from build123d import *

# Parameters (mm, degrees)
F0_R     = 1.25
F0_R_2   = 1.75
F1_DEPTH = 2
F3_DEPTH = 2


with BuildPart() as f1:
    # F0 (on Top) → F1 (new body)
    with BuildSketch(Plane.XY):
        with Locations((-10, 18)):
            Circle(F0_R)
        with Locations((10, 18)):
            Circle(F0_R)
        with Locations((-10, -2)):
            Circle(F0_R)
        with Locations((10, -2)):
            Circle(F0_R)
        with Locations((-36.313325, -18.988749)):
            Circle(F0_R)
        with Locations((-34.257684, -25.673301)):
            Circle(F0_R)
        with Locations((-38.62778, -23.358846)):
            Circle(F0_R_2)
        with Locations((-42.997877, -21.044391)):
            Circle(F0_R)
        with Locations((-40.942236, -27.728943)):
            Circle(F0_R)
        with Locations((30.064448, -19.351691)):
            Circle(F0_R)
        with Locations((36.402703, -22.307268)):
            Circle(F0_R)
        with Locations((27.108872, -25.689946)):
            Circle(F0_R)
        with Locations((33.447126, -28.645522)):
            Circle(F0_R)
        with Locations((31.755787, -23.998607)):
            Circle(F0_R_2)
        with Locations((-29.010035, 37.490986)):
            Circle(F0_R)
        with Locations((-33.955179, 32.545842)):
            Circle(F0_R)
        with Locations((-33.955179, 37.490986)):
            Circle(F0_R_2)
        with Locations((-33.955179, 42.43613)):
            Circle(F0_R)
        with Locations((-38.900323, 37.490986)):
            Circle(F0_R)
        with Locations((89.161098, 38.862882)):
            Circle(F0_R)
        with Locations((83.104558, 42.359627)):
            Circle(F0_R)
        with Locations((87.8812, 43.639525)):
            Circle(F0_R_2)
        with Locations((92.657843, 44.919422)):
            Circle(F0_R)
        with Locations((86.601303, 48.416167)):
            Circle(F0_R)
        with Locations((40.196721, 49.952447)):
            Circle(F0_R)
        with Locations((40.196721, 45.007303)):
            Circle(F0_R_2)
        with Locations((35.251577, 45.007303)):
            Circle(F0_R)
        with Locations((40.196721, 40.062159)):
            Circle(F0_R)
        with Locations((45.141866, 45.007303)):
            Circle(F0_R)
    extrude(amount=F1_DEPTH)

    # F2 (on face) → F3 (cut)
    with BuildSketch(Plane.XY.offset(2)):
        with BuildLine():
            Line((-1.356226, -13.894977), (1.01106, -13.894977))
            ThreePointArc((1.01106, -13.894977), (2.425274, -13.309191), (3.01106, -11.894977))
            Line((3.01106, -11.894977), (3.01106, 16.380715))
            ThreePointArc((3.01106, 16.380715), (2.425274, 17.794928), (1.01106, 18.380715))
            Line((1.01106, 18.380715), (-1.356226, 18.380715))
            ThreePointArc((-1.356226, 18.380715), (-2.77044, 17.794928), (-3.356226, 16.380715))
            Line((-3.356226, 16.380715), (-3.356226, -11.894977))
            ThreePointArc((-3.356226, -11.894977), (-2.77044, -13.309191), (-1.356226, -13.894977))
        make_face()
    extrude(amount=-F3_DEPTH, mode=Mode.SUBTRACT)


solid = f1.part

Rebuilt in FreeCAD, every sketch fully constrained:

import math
import FreeCAD as App
import Part
import Sketcher

doc = App.newDocument("Part")
params = doc.addObject("Spreadsheet::Sheet", "Params")
for row, (alias, value) in enumerate([
    ("sketch1_diameter", "2.5 mm"),
    ("sketch1_diameter2", "3.5 mm"),
    ("pad1_length", "2 mm"),
    ("sketch2_radius", "1.999999 mm"),
    ("pocket1_length", "2 mm"),
], start=1):
    params.set(f"A{row}", alias)
    params.set(f"B{row}", "=" + value)
    params.setAlias(f"B{row}", alias)

body = doc.addObject("PartDesign::Body", "Body")
body.AllowCompound = True

# Sketch on XY plane
sketch1 = body.newObject("Sketcher::SketchObject", "Sketch")
sketch1.AttachmentSupport = (doc.getObject("XY_Plane"), [""])
sketch1.MapMode = "FlatFace"
sketch1.addGeometry([
    Part.Circle(App.Vector(-10, 18, 0), App.Vector(0, 0, 1), 1.25),  # 0
    Part.Circle(App.Vector(10, 18, 0), App.Vector(0, 0, 1), 1.25),  # 1
    Part.Circle(App.Vector(-10, -2, 0), App.Vector(0, 0, 1), 1.25),  # 2
    Part.Circle(App.Vector(10, -2, 0), App.Vector(0, 0, 1), 1.25),  # 3
    Part.Circle(App.Vector(-36.313325, -18.988749, 0), App.Vector(0, 0, 1), 1.25),  # 4
    Part.Circle(App.Vector(-34.257684, -25.673301, 0), App.Vector(0, 0, 1), 1.25),  # 5
    Part.Circle(App.Vector(-38.62778, -23.358846, 0), App.Vector(0, 0, 1), 1.75),  # 6
    Part.Circle(App.Vector(-42.997877, -21.044391, 0), App.Vector(0, 0, 1), 1.25),  # 7
    Part.Circle(App.Vector(-40.942236, -27.728943, 0), App.Vector(0, 0, 1), 1.25),  # 8
    Part.Circle(App.Vector(30.064448, -19.351691, 0), App.Vector(0, 0, 1), 1.25),  # 9
    Part.Circle(App.Vector(36.402703, -22.307268, 0), App.Vector(0, 0, 1), 1.25),  # 10
    Part.Circle(App.Vector(27.108872, -25.689946, 0), App.Vector(0, 0, 1), 1.25),  # 11
    Part.Circle(App.Vector(33.447126, -28.645522, 0), App.Vector(0, 0, 1), 1.25),  # 12
    Part.Circle(App.Vector(31.755787, -23.998607, 0), App.Vector(0, 0, 1), 1.75),  # 13
    Part.Circle(App.Vector(-29.010035, 37.490986, 0), App.Vector(0, 0, 1), 1.25),  # 14
    Part.Circle(App.Vector(-33.955179, 32.545842, 0), App.Vector(0, 0, 1), 1.25),  # 15
    Part.Circle(App.Vector(-33.955179, 37.490986, 0), App.Vector(0, 0, 1), 1.75),  # 16
    Part.Circle(App.Vector(-33.955179, 42.43613, 0), App.Vector(0, 0, 1), 1.25),  # 17
    Part.Circle(App.Vector(-38.900323, 37.490986, 0), App.Vector(0, 0, 1), 1.25),  # 18
    Part.Circle(App.Vector(89.161098, 38.862882, 0), App.Vector(0, 0, 1), 1.25),  # 19
    Part.Circle(App.Vector(83.104558, 42.359627, 0), App.Vector(0, 0, 1), 1.25),  # 20
    Part.Circle(App.Vector(87.8812, 43.639525, 0), App.Vector(0, 0, 1), 1.75),  # 21
    Part.Circle(App.Vector(92.657843, 44.919422, 0), App.Vector(0, 0, 1), 1.25),  # 22
    Part.Circle(App.Vector(86.601303, 48.416167, 0), App.Vector(0, 0, 1), 1.25),  # 23
    Part.Circle(App.Vector(40.196721, 49.952447, 0), App.Vector(0, 0, 1), 1.25),  # 24
    Part.Circle(App.Vector(40.196721, 45.007303, 0), App.Vector(0, 0, 1), 1.75),  # 25
    Part.Circle(App.Vector(35.251577, 45.007303, 0), App.Vector(0, 0, 1), 1.25),  # 26
    Part.Circle(App.Vector(40.196721, 40.062159, 0), App.Vector(0, 0, 1), 1.25),  # 27
    Part.Circle(App.Vector(45.141866, 45.007303, 0), App.Vector(0, 0, 1), 1.25),  # 28
], False)
sketch1.addConstraint([
    Sketcher.Constraint("Equal", 0, 1),
    Sketcher.Constraint("Equal", 1, 2),
    Sketcher.Constraint("Equal", 2, 3),
    Sketcher.Constraint("Equal", 3, 4),
    Sketcher.Constraint("Equal", 4, 5),
    Sketcher.Constraint("Equal", 5, 7),
    Sketcher.Constraint("Equal", 7, 8),
    Sketcher.Constraint("Equal", 8, 9),
    Sketcher.Constraint("Equal", 9, 10),
    Sketcher.Constraint("Equal", 10, 11),
    Sketcher.Constraint("Equal", 11, 12),
    Sketcher.Constraint("Equal", 6, 13),
    Sketcher.Constraint("Equal", 12, 14),
    Sketcher.Constraint("Equal", 14, 15),
    Sketcher.Constraint("Equal", 13, 16),
    Sketcher.Constraint("Equal", 15, 17),
    Sketcher.Constraint("Equal", 17, 18),
    Sketcher.Constraint("Equal", 18, 19),
    Sketcher.Constraint("Equal", 19, 20),
    Sketcher.Constraint("Equal", 16, 21),
    Sketcher.Constraint("Equal", 20, 22),
    Sketcher.Constraint("Equal", 22, 23),
    Sketcher.Constraint("Equal", 23, 24),
    Sketcher.Constraint("Equal", 21, 25),
    Sketcher.Constraint("Equal", 24, 26),
    Sketcher.Constraint("Equal", 26, 27),
    Sketcher.Constraint("Equal", 27, 28),
    Sketcher.Constraint("Symmetric", 0, 3, 1, 3, -2),
    Sketcher.Constraint("Symmetric", 2, 3, 3, 3, -2),
    Sketcher.Constraint("Horizontal", 14, 3, 16, 3),
    Sketcher.Constraint("Horizontal", 16, 3, 18, 3),
    Sketcher.Constraint("Horizontal", 25, 3, 26, 3),
    Sketcher.Constraint("Horizontal", 26, 3, 28, 3),
    Sketcher.Constraint("Vertical", 0, 3, 2, 3),
    Sketcher.Constraint("Vertical", 15, 3, 16, 3),
    Sketcher.Constraint("Vertical", 16, 3, 17, 3),
    Sketcher.Constraint("Vertical", 24, 3, 25, 3),
    Sketcher.Constraint("Vertical", 25, 3, 27, 3),
    Sketcher.Constraint("Diameter", 0, 2.5),
    Sketcher.Constraint("Diameter", 6, 3.5),
    Sketcher.Constraint("DistanceX", 0, 3, -1, 1, 10.0),
    Sketcher.Constraint("DistanceY", -1, 1, 0, 3, 18.0),
    Sketcher.Constraint("DistanceY", 2, 3, -1, 1, 2.0),
    Sketcher.Constraint("DistanceY", 5, 3, -1, 1, 25.673301),
    Sketcher.Constraint("DistanceX", -1, 1, 21, 3, 87.8812),
    Sketcher.Constraint("DistanceY", 4, 3, -1, 1, 18.988749),
    Sketcher.Constraint("DistanceX", 6, 3, -1, 1, 38.62778),
    Sketcher.Constraint("DistanceY", 7, 3, -1, 1, 21.044391),
    Sketcher.Constraint("DistanceY", 9, 3, -1, 1, 19.351691),
    Sketcher.Constraint("DistanceY", 10, 3, -1, 1, 22.307268),
    Sketcher.Constraint("DistanceY", 12, 3, -1, 1, 28.645522),
    Sketcher.Constraint("DistanceX", 15, 3, -1, 1, 33.955179),
    Sketcher.Constraint("DistanceY", -1, 1, 17, 3, 42.43613),
    Sketcher.Constraint("DistanceY", -1, 1, 22, 3, 44.919422),
    Sketcher.Constraint("DistanceX", -1, 1, 24, 3, 40.196721),
    Sketcher.Constraint("DistanceY", -1, 1, 27, 3, 40.062159),
    Sketcher.Constraint("DistanceX", 4, 3, 5, 3, 2.055641),
    Sketcher.Constraint("DistanceX", 7, 3, 8, 3, 2.055641),
    Sketcher.Constraint("DistanceX", 8, 3, 4, 3, 4.628911),
    Sketcher.Constraint("DistanceX", 5, 3, 9, 3, 64.322132),
    Sketcher.Constraint("DistanceX", 11, 3, 10, 3, 9.293831),
    Sketcher.Constraint("DistanceX", 13, 3, 12, 3, 1.691339),
    Sketcher.Constraint("DistanceY", 11, 3, 13, 3, 1.691339),
    Sketcher.Constraint("DistanceY", 13, 3, 10, 3, 1.691339),
    Sketcher.Constraint("DistanceX", 9, 3, 13, 3, 1.691339),
    Sketcher.Constraint("DistanceX", 4, 3, 14, 3, 7.30329),
    Sketcher.Constraint("DistanceY", 4, 3, 15, 3, 51.534591),
    Sketcher.Constraint("DistanceX", 18, 3, 14, 3, 9.890288),
    Sketcher.Constraint("DistanceY", 10, 3, 19, 3, 61.17015),
    Sketcher.Constraint("DistanceX", 9, 3, 19, 3, 59.09665),
    Sketcher.Constraint("DistanceX", 20, 3, 19, 3, 6.05654),
    Sketcher.Constraint("DistanceY", 9, 3, 20, 3, 61.711318),
    Sketcher.Constraint("DistanceX", 10, 3, 22, 3, 56.25514),
    Sketcher.Constraint("DistanceY", 20, 3, 23, 3, 6.05654),
    Sketcher.Constraint("DistanceX", 23, 3, 22, 3, 6.05654),
    Sketcher.Constraint("DistanceY", 20, 3, 24, 3, 7.59282),
    Sketcher.Constraint("DistanceY", 21, 3, 25, 3, 1.367778),
    Sketcher.Constraint("DistanceX", 26, 3, 20, 3, 47.852981),
    Sketcher.Constraint("DistanceX", 26, 3, 28, 3, 9.890289),
    Sketcher.Constraint("DistanceX", 4, 3, -1, 1, 36.313325),
    Sketcher.Constraint("DistanceY", 6, 3, -1, 1, 23.358846),
    Sketcher.Constraint("DistanceY", 8, 3, -1, 1, 27.728943),
    Sketcher.Constraint("DistanceX", -1, 1, 10, 3, 36.402703),
    Sketcher.Constraint("DistanceY", -1, 1, 14, 3, 37.490986),
    Sketcher.Constraint("DistanceY", -1, 1, 21, 3, 43.639525),
])
sketch1.setExpression("Constraints[38]", "Params.sketch1_diameter")
sketch1.setExpression("Constraints[39]", "Params.sketch1_diameter2")
pad1 = body.newObject("PartDesign::Pad", "Pad")
pad1.Profile = sketch1
pad1.setExpression("Length", "Params.pad1_length")

# Sketch on XY plane
sketch2 = body.newObject("Sketcher::SketchObject", "Sketch001")
sketch2.AttachmentSupport = (doc.getObject("XY_Plane"), [""])
sketch2.MapMode = "FlatFace"
sketch2.AttachmentOffset = App.Placement(App.Vector(0, 0, 2), App.Rotation())
sketch2.addGeometry([
    Part.LineSegment(App.Vector(-1.356226, -13.894977, 0), App.Vector(1.01106, -13.894977, 0)),  # 0
    Part.ArcOfCircle(Part.Circle(App.Vector(1.011061, -11.894978, 0), App.Vector(0, 0, 1), 1.999999), math.radians(-90.000043), math.radians(0.000043)),  # 1
    Part.LineSegment(App.Vector(3.01106, -11.894977, 0), App.Vector(3.01106, 16.380715, 0)),  # 2
    Part.ArcOfCircle(Part.Circle(App.Vector(1.01106, 16.380715, 0), App.Vector(0, 0, 1), 2), math.radians(0.000006), math.radians(89.999994)),  # 3
    Part.LineSegment(App.Vector(1.01106, 18.380715, 0), App.Vector(-1.356226, 18.380715, 0)),  # 4
    Part.ArcOfCircle(Part.Circle(App.Vector(-1.356226, 16.380715, 0), App.Vector(0, 0, 1), 2), math.radians(90.000006), math.radians(179.999994)),  # 5
    Part.LineSegment(App.Vector(-3.356226, 16.380715, 0), App.Vector(-3.356226, -11.894977, 0)),  # 6
    Part.ArcOfCircle(Part.Circle(App.Vector(-1.356227, -11.894978, 0), App.Vector(0, 0, 1), 1.999999), math.radians(179.999957), math.radians(270.000043)),  # 7
], False)
sketch2.addConstraint([
    Sketcher.Constraint("Tangent", 0, 2, 1, 1),
    Sketcher.Constraint("Tangent", 1, 2, 2, 1),
    Sketcher.Constraint("Tangent", 2, 2, 3, 1),
    Sketcher.Constraint("Tangent", 3, 2, 4, 1),
    Sketcher.Constraint("Tangent", 4, 2, 5, 1),
    Sketcher.Constraint("Tangent", 5, 2, 6, 1),
    Sketcher.Constraint("Tangent", 6, 2, 7, 1),
    Sketcher.Constraint("Tangent", 7, 2, 0, 1),
    Sketcher.Constraint("Horizontal", 0),
    Sketcher.Constraint("Vertical", 2),
    Sketcher.Constraint("Horizontal", 4),
    Sketcher.Constraint("Vertical", 6),
    Sketcher.Constraint("Equal", 1, 3),
    Sketcher.Constraint("Equal", 3, 5),
    Sketcher.Constraint("Equal", 5, 7),
    Sketcher.Constraint("Radius", 1, 1.999999),
    Sketcher.Constraint("DistanceY", 2, 1, 2, 2, 28.275692),
    Sketcher.Constraint("DistanceX", 0, 1, 0, 2, 2.367286),
    Sketcher.Constraint("DistanceX", -1, 1, 1, 3, 1.011061),
    Sketcher.Constraint("DistanceY", 1, 3, -1, 1, 11.894978),
])
sketch2.setExpression("Constraints[15]", "Params.sketch2_radius")
pocket1 = body.newObject("PartDesign::Pocket", "Pocket")
pocket1.Profile = sketch2
pocket1.setExpression("Length", "Params.pocket1_length")

doc.recompute()
